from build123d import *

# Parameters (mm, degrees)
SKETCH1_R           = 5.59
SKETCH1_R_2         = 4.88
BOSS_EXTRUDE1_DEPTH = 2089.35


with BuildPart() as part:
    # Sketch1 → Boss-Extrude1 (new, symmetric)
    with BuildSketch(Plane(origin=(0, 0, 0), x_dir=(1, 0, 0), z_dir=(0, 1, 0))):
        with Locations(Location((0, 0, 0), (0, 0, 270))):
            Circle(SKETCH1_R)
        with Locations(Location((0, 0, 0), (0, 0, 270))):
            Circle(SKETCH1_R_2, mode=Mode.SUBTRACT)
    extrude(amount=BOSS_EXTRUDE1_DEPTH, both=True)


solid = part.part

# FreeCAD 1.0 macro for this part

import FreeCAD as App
import Part
import Sketcher
Q = App.Units.Quantity

doc = App.newDocument("Part")
body = doc.addObject("PartDesign::Body", "Body")

sketch1 = body.newObject("Sketcher::SketchObject", "Sketch")
sketch1.AttachmentSupport = (doc.getObject("XZ_Plane"), [""])
sketch1.MapMode = "FlatFace"
sketch1.addGeometry([
    Part.Circle(App.Vector(0, 0, 0), App.Vector(0, 0, 1), 5.59),
    Part.Circle(App.Vector(0, 0, 0), App.Vector(0, 0, 1), 4.88),
], False)
sketch1.addConstraint([
    Sketcher.Constraint("Coincident", 0, 3, -1, 1),
    Sketcher.Constraint("Coincident", 1, 3, -1, 1),
    Sketcher.Constraint("Diameter", 0, Q("11.18 mm")),
    Sketcher.Constraint("Diameter", 1, Q("9.76 mm")),
])
pad1 = body.newObject("PartDesign::Pad", "Pad")
pad1.Profile = sketch1
pad1.Length = 4178.7
pad1.Midplane = True

doc.recompute()
